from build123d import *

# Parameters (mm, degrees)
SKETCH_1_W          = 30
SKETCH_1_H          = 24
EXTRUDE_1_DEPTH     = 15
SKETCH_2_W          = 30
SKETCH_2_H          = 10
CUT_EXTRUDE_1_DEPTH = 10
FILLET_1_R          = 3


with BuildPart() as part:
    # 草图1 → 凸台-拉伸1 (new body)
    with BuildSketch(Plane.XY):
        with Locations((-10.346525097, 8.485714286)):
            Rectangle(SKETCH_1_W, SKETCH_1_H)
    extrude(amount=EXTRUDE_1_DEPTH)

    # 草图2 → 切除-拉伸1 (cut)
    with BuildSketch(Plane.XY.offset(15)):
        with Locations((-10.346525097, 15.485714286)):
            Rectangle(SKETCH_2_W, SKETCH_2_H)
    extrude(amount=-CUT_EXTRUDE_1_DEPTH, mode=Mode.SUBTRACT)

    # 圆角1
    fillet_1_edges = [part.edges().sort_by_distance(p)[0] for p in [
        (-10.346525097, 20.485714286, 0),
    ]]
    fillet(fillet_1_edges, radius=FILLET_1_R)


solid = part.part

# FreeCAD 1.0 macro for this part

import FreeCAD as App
import Part
import Sketcher
from FreeCAD import Vector


def edges_at(feature, points):
    """Names of the edges that pass closest to the given points."""
    edges = feature.Shape.Edges
    near = lambda p: min(range(len(edges)), key=lambda i: edges[i].distToShape(Part.Vertex(*p))[0])
    return sorted({f"Edge{near(p) + 1}" for p in points})

doc = App.newDocument("Part")
body = doc.addObject("PartDesign::Body", "Body")

# Sketch on XY plane
sketch1 = body.newObject("Sketcher::SketchObject", "Sketch")
sketch1.AttachmentSupport = (doc.getObject("XY_Plane"), [""])
sketch1.MapMode = "FlatFace"
sketch1.addGeometry([
    Part.LineSegment(Vector(-25, 20, 0), Vector(-25, -4, 0)),
    Part.LineSegment(Vector(-25, -4, 0), Vector(5, -4, 0)),
    Part.LineSegment(Vector(5, -4, 0), Vector(5, 20, 0)),
    Part.LineSegment(Vector(5, 20, 0), Vector(-25, 20, 0)),
], False)
sketch1.addConstraint([
    Sketcher.Constraint("Coincident", 0, 2, 1, 1),
    Sketcher.Constraint("Coincident", 1, 2, 2, 1),
    Sketcher.Constraint("Coincident", 2, 2, 3, 1),
    Sketcher.Constraint("Coincident", 3, 2, 0, 1),
    Sketcher.Constraint("Vertical", 0),
    Sketcher.Constraint("Horizontal", 1),
    Sketcher.Constraint("Vertical", 2),
    Sketcher.Constraint("Horizontal", 3),
    Sketcher.Constraint("DistanceX", 1, 1, 1, 2, 30.0),
    Sketcher.Constraint("DistanceY", 0, 2, 0, 1, 24.0),
    Sketcher.Constraint("DistanceX", 0, 2, -1, 1, 25.346525),
    Sketcher.Constraint("DistanceY", 0, 2, -1, 1, 3.514286),
])
pad1 = body.newObject("PartDesign::Pad", "Pad")
pad1.Profile = sketch1
pad1.Length = 15

# Sketch on XY plane
sketch2 = body.newObject("Sketcher::SketchObject", "Sketch001")
sketch2.AttachmentSupport = (doc.getObject("XY_Plane"), [""])
sketch2.MapMode = "FlatFace"
sketch2.AttachmentOffset = App.Placement(Vector(0, 0, 15), App.Rotation())
sketch2.addGeometry([
    Part.LineSegment(Vector(-25, 20, 0), Vector(-25, 10, 0)),
    Part.LineSegment(Vector(-25, 10, 0), Vector(5, 10, 0)),
    Part.LineSegment(Vector(5, 10, 0), Vector(5, 20, 0)),
    Part.LineSegment(Vector(5, 20, 0), Vector(-25, 20, 0)),
], False)
sketch2.addConstraint([
    Sketcher.Constraint("Coincident", 0, 2, 1, 1),
    Sketcher.Constraint("Coincident", 1, 2, 2, 1),
    Sketcher.Constraint("Coincident", 2, 2, 3, 1),
    Sketcher.Constraint("Coincident", 3, 2, 0, 1),
    Sketcher.Constraint("Vertical", 0),
    Sketcher.Constraint("Horizontal", 1),
    Sketcher.Constraint("Vertical", 2),
    Sketcher.Constraint("Horizontal", 3),
    Sketcher.Constraint("DistanceX", 1, 1, 1, 2, 30.0),
    Sketcher.Constraint("DistanceY", 0, 2, 0, 1, 10.0),
    Sketcher.Constraint("DistanceX", 0, 2, -1, 1, 25.346525),
    Sketcher.Constraint("DistanceY", -1, 1, 0, 2, 10.485714),
])
pocket1 = body.newObject("PartDesign::Pocket", "Pocket")
pocket1.Profile = sketch2
pocket1.Length = 10
doc.recompute()

fillet = body.newObject("PartDesign::Fillet", "Fillet")
fillet.Base = (pocket1, edges_at(pocket1, [(-10.347, 20.486, 0)]))
fillet.Radius = 3

doc.recompute()
